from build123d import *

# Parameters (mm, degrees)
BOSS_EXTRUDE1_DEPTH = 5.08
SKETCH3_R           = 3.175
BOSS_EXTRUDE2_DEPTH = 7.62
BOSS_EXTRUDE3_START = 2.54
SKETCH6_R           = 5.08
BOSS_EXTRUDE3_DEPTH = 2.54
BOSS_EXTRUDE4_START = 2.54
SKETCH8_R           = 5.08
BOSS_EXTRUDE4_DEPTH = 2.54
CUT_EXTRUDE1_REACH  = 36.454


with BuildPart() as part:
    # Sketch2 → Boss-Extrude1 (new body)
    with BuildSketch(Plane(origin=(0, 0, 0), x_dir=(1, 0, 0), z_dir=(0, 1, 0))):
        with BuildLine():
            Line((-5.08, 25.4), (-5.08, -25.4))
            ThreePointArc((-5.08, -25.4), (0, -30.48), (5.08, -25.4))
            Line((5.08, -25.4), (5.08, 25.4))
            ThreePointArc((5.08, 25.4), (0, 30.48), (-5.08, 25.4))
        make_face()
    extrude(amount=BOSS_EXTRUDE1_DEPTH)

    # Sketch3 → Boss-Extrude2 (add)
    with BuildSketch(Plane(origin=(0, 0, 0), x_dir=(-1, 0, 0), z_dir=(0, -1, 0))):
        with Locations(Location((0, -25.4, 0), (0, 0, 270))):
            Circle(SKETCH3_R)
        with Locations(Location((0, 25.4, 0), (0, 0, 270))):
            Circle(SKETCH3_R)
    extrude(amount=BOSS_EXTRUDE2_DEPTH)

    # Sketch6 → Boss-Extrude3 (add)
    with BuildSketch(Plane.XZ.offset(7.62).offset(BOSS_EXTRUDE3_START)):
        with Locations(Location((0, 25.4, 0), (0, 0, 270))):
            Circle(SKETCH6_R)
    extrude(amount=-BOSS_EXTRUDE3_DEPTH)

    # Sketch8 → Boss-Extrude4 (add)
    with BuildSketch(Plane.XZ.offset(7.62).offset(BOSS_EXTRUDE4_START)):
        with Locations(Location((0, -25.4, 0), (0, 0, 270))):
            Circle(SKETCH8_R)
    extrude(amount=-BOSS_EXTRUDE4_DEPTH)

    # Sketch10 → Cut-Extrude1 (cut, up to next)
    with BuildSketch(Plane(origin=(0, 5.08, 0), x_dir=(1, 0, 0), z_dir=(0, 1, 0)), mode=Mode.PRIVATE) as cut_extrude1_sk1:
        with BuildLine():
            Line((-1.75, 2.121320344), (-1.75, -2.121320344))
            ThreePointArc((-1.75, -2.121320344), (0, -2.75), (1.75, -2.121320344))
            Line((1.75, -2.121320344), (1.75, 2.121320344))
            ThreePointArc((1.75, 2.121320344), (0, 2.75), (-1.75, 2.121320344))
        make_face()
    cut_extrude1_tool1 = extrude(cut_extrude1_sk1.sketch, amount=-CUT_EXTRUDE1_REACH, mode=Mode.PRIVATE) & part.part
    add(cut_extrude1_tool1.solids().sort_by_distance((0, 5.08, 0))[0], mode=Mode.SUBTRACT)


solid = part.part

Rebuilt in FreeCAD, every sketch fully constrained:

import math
import FreeCAD as App
import Part
import Sketcher
from FreeCAD import Vector
Q = App.Units.Quantity

doc = App.newDocument("Part")
body = doc.addObject("PartDesign::Body", "Body")

sketch1 = body.newObject("Sketcher::SketchObject", "Sketch")
sketch1.AttachmentSupport = (doc.getObject("XZ_Plane"), [""])
sketch1.MapMode = "FlatFace"
sketch1.addGeometry(Part.LineSegment(Vector(-5.08, -25.4, 0), Vector(-5.08, 25.4, 0)), False)
sketch1.addGeometry(Part.ArcOfCircle(Part.Circle(Vector(0, 25.4, 0), Vector(0, 0, 1), 5.08), math.radians(0), math.radians(180)), False)
sketch1.addGeometry(Part.LineSegment(Vector(5.08, 25.4, 0), Vector(5.08, -25.4, 0)), False)
sketch1.addGeometry(Part.ArcOfCircle(Part.Circle(Vector(0, -25.4, 0), Vector(0, 0, 1), 5.08), math.radians(180), math.radians(360)), False)
sketch1.addConstraint(Sketcher.Constraint("Tangent", 0, 2, 1, 2))
sketch1.addConstraint(Sketcher.Constraint("Tangent", 1, 1, 2, 1))
sketch1.addConstraint(Sketcher.Constraint("Tangent", 2, 2, 3, 2))
sketch1.addConstraint(Sketcher.Constraint("Tangent", 3, 1, 0, 1))
sketch1.addConstraint(Sketcher.Constraint("Vertical", 0))
sketch1.addConstraint(Sketcher.Constraint("Vertical", 2))
sketch1.addConstraint(Sketcher.Constraint("Symmetric", 1, 3, 3, 3, -1, 1))
sketch1.addConstraint(Sketcher.Constraint("Radius", 1, Q("0.2 in")))
sketch1.addConstraint(Sketcher.Constraint("DistanceY", 0, 1, 0, 2, Q("2 in")))
pad1 = body.newObject("PartDesign::Pad", "Pad")
pad1.Profile = sketch1
pad1.Length = Q("0.2 in")
pad1.Reversed = True

sketch2 = body.newObject("Sketcher::SketchObject", "Sketch001")
sketch2.AttachmentSupport = (doc.getObject("XZ_Plane"), [""])
sketch2.MapMode = "FlatFace"
sketch2.addGeometry(Part.Circle(Vector(0, 25.4, 0), Vector(0, 0, 1), 3.175), False)
sketch2.addGeometry(Part.Circle(Vector(0, -25.4, 0), Vector(0, 0, 1), 3.175), False)
sketch2.addConstraint(Sketcher.Constraint("Equal", 0, 1))
sketch2.addConstraint(Sketcher.Constraint("Symmetric", 0, 3, 1, 3, -1, 1))
sketch2.addConstraint(Sketcher.Constraint("PointOnObject", 0, 3, -2))
sketch2.addConstraint(Sketcher.Constraint("Diameter", 0, Q("0.25 in")))
sketch2.addConstraint(Sketcher.Constraint("DistanceY", -1, 1, 0, 3, Q("1 in")))
pad2 = body.newObject("PartDesign::Pad", "Pad001")
pad2.Profile = sketch2
pad2.Length = Q("0.3 in")

sketch3 = body.newObject("Sketcher::SketchObject", "Sketch002")
sketch3.AttachmentSupport = (doc.getObject("XZ_Plane"), [""])
sketch3.MapMode = "FlatFace"
sketch3.AttachmentOffset = App.Placement(Vector(0, 0, 0.4 * 25.4), App.Rotation())
sketch3.addGeometry(Part.Circle(Vector(0, 25.4, 0), Vector(0, 0, 1), 5.08), False)
sketch3.addConstraint(Sketcher.Constraint("PointOnObject", 0, 3, -2))
sketch3.addConstraint(Sketcher.Constraint("Diameter", 0, Q("0.4 in")))
sketch3.addConstraint(Sketcher.Constraint("DistanceY", -1, 1, 0, 3, Q("1 in")))
pad3 = body.newObject("PartDesign::Pad", "Pad002")
pad3.Profile = sketch3
pad3.Length = Q("0.1 in")
pad3.Reversed = True

sketch4 = body.newObject("Sketcher::SketchObject", "Sketch003")
sketch4.AttachmentSupport = (doc.getObject("XZ_Plane"), [""])
sketch4.MapMode = "FlatFace"
sketch4.AttachmentOffset = App.Placement(Vector(0, 0, 0.4 * 25.4), App.Rotation())
sketch4.addGeometry(Part.Circle(Vector(0, -25.4, 0), Vector(0, 0, 1), 5.08), False)
sketch4.addConstraint(Sketcher.Constraint("PointOnObject", 0, 3, -2))
sketch4.addConstraint(Sketcher.Constraint("Diameter", 0, Q("0.4 in")))
sketch4.addConstraint(Sketcher.Constraint("DistanceY", 0, 3, -1, 1, Q("1 in")))
pad4 = body.newObject("PartDesign::Pad", "Pad003")
pad4.Profile = sketch4
pad4.Length = Q("0.1 in")
pad4.Reversed = True

sketch5 = body.newObject("Sketcher::SketchObject", "Sketch004")
sketch5.AttachmentSupport = (doc.getObject("XZ_Plane"), [""])
sketch5.MapMode = "FlatFace"
sketch5.AttachmentOffset = App.Placement(Vector(0, 0, -0.2 * 25.4), App.Rotation())
sketch5.addGeometry(Part.LineSegment(Vector(-1.75, -2.12132, 0), Vector(-1.75, 2.12132, 0)), False)
sketch5.addGeometry(Part.ArcOfCircle(Part.Circle(Vector(0, 0, 0), Vector(0, 0, 1), 2.75), math.radians(50.478804), math.radians(129.521196)), False)
sketch5.addGeometry(Part.LineSegment(Vector(1.75, 2.12132, 0), Vector(1.75, -2.12132, 0)), False)
sketch5.addGeometry(Part.ArcOfCircle(Part.Circle(Vector(0, 0, 0), Vector(0, 0, 1), 2.75), math.radians(-129.521196), math.radians(-50.478804)), False)
sketch5.addConstraint(Sketcher.Constraint("Coincident", 0, 2, 1, 2))
sketch5.addConstraint(Sketcher.Constraint("Coincident", 1, 1, 2, 1))
sketch5.addConstraint(Sketcher.Constraint("Coincident", 2, 2, 3, 2))
sketch5.addConstraint(Sketcher.Constraint("Coincident", 3, 1, 0, 1))
sketch5.addConstraint(Sketcher.Constraint("Vertical", 0))
sketch5.addConstraint(Sketcher.Constraint("Vertical", 2))
sketch5.addConstraint(Sketcher.Constraint("Coincident", 1, 3, -1, 1))
sketch5.addConstraint(Sketcher.Constraint("Coincident", 3, 3, -1, 1))
sketch5.addConstraint(Sketcher.Constraint("Equal", 1, 3))
sketch5.addConstraint(Sketcher.Constraint("Horizontal", 0, 2, 1, 1))
sketch5.addConstraint(Sketcher.Constraint("Radius", 1, Q("2.75 mm")))
sketch5.addConstraint(Sketcher.Constraint("DistanceY", 0, 1, 0, 2, Q("4.242641 mm")))
pocket1 = body.newObject("PartDesign::Pocket", "Pocket")
pocket1.Profile = sketch5
pocket1.Type = "UpToFirst"
pocket1.Reversed = True

doc.recompute()
